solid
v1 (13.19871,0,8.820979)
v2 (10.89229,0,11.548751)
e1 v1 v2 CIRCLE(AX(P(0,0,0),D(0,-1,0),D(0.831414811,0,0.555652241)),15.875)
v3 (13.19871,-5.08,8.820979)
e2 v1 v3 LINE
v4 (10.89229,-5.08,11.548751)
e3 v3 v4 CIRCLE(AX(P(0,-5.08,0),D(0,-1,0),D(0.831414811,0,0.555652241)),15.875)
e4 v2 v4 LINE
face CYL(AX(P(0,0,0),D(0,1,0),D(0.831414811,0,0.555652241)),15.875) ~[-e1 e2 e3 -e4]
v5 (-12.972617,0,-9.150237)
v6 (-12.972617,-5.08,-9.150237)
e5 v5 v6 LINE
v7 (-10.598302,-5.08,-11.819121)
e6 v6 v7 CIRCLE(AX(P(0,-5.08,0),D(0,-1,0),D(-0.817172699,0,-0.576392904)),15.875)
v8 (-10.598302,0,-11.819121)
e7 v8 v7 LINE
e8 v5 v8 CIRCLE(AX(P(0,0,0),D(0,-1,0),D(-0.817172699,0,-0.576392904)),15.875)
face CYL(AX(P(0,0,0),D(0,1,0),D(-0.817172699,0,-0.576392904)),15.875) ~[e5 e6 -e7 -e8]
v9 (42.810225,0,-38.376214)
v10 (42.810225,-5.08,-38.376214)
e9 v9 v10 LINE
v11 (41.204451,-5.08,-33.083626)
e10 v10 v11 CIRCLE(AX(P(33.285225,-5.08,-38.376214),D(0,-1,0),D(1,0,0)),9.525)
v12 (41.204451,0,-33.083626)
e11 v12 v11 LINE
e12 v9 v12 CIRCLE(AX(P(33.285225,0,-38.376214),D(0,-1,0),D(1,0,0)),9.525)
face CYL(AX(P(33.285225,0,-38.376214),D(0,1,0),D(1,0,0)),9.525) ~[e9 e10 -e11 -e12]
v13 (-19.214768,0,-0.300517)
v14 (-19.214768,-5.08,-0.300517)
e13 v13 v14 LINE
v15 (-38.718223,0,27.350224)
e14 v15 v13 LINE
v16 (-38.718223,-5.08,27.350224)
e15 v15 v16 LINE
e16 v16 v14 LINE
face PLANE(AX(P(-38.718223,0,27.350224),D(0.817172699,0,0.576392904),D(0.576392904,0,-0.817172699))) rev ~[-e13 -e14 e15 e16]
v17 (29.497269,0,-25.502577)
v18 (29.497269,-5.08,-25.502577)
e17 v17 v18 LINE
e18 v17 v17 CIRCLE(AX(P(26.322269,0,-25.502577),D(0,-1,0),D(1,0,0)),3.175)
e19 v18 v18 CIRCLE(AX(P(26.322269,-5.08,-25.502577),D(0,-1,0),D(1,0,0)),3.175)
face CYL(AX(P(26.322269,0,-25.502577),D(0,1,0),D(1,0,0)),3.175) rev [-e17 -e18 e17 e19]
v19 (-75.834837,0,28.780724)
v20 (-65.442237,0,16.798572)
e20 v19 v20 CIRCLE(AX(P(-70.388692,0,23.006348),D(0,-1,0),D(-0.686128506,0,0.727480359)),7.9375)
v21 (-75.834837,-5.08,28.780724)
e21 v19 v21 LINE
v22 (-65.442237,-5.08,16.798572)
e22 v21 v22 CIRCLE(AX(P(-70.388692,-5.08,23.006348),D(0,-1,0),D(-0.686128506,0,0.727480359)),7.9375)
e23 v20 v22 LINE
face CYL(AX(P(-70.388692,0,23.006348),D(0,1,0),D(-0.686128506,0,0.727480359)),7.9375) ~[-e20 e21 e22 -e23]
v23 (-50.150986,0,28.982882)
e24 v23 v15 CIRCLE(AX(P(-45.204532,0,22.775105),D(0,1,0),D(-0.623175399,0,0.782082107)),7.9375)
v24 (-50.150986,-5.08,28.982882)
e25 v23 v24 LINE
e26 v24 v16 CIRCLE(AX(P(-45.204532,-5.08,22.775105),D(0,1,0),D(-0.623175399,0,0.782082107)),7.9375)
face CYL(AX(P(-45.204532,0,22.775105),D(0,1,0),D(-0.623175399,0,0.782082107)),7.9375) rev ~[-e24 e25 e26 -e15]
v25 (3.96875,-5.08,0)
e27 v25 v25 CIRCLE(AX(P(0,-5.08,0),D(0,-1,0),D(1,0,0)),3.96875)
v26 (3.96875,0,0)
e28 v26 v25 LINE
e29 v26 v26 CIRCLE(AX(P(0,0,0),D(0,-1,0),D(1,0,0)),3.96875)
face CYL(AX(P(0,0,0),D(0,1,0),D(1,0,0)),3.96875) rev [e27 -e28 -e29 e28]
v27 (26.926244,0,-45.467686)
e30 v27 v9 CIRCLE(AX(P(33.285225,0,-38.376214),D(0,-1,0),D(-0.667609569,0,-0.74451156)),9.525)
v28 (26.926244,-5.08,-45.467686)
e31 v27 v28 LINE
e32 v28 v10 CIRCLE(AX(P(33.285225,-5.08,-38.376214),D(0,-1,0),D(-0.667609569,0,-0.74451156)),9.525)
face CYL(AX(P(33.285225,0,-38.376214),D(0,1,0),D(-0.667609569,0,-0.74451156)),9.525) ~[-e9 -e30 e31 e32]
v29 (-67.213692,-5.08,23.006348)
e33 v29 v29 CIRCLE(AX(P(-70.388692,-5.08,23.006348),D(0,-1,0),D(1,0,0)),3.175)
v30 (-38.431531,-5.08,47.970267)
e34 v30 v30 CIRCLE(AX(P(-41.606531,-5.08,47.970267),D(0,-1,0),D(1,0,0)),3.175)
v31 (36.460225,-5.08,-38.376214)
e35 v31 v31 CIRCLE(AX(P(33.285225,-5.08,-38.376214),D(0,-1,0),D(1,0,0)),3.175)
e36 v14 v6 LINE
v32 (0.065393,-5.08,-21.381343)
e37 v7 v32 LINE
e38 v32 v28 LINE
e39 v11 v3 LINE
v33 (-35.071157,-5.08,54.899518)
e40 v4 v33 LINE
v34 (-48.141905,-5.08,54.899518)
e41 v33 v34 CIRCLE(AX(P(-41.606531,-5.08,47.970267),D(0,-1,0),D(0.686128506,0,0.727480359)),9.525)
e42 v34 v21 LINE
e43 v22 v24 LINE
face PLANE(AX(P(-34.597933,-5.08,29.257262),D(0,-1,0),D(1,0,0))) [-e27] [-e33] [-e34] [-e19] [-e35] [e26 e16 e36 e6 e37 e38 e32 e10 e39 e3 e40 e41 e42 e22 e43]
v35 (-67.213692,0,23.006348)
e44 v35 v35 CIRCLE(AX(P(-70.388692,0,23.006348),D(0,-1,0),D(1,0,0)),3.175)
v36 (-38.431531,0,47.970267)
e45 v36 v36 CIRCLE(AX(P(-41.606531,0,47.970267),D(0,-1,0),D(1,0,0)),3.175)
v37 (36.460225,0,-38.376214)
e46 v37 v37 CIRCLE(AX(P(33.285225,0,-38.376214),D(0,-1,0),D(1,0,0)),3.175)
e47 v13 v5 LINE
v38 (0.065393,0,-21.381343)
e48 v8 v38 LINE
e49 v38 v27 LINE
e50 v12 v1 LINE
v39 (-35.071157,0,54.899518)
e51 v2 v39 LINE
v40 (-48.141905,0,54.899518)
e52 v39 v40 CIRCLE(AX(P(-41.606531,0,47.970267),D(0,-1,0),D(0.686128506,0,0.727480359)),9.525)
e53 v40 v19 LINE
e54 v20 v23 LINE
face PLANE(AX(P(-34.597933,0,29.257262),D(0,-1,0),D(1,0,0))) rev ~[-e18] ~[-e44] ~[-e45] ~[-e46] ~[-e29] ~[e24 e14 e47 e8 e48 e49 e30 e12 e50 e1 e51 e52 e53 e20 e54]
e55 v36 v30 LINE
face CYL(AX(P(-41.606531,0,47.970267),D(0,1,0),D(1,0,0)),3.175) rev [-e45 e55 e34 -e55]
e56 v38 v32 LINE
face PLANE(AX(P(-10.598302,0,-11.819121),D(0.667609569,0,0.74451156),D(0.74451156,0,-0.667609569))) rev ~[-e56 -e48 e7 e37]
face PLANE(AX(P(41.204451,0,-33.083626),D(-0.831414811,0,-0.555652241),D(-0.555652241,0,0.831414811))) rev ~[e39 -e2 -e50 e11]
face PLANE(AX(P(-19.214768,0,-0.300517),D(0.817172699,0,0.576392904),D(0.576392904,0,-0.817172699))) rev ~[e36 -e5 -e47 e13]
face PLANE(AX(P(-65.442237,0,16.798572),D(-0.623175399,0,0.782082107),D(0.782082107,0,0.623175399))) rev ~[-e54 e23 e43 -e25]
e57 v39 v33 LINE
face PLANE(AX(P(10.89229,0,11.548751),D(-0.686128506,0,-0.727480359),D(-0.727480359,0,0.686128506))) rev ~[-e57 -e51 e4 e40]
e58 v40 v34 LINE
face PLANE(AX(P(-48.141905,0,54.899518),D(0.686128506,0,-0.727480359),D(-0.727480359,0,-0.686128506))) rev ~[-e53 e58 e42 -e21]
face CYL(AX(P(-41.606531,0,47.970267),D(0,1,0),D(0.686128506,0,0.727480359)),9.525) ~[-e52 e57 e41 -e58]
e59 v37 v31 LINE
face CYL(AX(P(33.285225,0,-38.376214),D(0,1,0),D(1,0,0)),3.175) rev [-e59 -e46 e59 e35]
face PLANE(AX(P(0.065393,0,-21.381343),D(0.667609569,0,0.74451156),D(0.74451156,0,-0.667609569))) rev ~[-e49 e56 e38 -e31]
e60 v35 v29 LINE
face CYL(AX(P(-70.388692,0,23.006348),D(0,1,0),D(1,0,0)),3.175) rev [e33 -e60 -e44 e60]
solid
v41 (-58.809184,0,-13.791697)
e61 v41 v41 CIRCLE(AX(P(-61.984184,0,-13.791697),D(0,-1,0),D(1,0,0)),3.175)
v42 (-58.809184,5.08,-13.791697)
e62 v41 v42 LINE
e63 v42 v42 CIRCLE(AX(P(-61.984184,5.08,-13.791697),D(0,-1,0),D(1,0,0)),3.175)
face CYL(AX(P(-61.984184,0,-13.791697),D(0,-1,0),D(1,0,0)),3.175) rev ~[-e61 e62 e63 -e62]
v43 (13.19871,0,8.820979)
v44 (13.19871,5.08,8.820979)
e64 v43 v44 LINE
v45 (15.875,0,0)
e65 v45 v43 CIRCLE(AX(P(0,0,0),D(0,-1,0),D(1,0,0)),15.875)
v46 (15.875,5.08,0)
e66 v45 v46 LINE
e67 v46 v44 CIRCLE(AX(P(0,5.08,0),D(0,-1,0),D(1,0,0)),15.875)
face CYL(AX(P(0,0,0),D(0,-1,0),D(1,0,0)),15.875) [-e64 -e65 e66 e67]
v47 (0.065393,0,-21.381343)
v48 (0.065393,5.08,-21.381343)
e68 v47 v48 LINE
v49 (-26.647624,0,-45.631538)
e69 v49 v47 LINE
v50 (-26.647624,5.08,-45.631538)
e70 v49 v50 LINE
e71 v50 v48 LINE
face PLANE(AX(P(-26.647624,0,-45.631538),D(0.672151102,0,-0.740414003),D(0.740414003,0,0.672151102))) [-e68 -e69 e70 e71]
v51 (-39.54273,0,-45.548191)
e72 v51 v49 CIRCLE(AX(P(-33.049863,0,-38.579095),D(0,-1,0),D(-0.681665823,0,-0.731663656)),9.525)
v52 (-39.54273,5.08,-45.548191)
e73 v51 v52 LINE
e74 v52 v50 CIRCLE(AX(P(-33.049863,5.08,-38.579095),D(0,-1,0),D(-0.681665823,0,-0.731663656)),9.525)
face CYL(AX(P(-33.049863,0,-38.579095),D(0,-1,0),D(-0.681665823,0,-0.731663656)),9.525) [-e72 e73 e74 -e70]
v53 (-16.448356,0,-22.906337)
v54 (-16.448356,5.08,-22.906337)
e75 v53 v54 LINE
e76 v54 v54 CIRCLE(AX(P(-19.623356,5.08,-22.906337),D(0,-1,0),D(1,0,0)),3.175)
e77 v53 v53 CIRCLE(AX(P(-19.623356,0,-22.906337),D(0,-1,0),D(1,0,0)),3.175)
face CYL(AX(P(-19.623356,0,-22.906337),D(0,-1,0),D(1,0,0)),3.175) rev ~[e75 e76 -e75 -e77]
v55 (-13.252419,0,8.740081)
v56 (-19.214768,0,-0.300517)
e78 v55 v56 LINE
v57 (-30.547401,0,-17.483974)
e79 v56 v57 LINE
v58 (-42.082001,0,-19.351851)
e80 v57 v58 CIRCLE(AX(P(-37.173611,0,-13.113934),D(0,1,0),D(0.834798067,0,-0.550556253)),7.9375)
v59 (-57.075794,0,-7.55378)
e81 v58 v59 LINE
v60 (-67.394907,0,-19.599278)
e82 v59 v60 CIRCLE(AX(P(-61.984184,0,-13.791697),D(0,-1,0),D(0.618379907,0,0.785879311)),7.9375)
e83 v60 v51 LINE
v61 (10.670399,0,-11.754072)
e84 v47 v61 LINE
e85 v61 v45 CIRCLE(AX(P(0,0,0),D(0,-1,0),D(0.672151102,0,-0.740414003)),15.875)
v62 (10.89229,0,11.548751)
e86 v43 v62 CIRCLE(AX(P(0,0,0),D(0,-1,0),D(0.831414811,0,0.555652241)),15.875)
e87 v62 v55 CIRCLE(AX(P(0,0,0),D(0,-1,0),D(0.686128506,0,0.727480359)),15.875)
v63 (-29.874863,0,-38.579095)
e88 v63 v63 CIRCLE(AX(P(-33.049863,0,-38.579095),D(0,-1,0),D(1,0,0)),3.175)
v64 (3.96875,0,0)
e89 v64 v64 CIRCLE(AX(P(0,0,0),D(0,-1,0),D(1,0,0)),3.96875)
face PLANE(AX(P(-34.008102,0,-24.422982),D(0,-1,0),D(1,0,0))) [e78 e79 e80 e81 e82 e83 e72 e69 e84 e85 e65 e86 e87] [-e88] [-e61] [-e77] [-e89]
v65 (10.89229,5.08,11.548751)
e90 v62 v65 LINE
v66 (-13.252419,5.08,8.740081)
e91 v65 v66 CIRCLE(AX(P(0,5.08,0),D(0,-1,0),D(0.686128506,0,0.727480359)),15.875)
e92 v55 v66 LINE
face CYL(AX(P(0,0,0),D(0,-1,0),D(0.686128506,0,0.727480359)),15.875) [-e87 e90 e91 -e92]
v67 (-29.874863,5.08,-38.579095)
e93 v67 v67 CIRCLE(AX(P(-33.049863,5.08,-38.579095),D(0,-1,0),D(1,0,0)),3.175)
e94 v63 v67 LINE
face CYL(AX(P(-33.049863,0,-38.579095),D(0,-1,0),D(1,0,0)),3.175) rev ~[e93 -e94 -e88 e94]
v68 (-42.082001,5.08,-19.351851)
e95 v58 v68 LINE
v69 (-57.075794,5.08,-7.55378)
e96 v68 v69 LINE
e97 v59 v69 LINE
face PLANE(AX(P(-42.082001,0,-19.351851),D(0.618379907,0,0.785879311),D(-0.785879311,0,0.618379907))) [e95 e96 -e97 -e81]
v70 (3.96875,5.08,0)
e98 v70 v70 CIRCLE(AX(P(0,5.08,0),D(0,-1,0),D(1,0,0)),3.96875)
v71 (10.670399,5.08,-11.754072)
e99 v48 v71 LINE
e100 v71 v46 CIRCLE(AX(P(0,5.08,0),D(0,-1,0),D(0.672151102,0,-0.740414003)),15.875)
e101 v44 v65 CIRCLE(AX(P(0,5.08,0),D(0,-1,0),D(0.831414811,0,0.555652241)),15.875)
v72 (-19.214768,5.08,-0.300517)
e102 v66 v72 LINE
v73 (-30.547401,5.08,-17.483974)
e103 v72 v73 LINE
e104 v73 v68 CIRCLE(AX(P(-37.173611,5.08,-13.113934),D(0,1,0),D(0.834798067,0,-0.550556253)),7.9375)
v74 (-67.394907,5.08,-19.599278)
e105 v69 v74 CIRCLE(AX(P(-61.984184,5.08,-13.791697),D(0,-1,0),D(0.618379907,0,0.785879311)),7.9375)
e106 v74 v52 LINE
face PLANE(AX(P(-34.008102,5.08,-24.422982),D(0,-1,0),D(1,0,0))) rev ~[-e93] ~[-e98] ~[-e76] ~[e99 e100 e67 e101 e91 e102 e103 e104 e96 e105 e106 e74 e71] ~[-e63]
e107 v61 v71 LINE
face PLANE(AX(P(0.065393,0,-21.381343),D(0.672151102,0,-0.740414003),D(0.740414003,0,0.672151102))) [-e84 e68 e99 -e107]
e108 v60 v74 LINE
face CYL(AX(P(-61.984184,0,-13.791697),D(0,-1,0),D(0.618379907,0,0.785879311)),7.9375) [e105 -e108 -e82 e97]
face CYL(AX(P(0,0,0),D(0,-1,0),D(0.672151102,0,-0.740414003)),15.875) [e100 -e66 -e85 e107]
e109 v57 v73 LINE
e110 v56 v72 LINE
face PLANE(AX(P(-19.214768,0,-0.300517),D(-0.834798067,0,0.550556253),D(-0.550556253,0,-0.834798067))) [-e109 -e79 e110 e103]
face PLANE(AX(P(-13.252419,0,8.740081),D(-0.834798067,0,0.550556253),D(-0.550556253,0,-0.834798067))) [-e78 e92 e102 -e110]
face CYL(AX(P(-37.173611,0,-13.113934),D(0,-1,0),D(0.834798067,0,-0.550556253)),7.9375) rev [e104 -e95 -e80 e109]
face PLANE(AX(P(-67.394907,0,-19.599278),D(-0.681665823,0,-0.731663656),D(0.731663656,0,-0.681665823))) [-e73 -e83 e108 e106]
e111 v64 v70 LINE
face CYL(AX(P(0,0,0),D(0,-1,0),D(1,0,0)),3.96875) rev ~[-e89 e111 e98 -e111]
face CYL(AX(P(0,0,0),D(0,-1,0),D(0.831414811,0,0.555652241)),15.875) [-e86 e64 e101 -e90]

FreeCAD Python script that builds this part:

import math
import FreeCAD as App
import Part
import Sketcher
Q = App.Units.Quantity

doc = App.newDocument("Part")
body = doc.addObject("PartDesign::Body", "Body")

sketch1 = doc.addObject("Sketcher::SketchObject", "Sketch")
body.addObject(sketch1)
sketch1.AttachmentSupport = (doc.XZ_Plane, [""])
sketch1.MapMode = "FlatFace"
sketch1.addGeometry([
    Part.LineSegment(App.Vector(10.89229, 11.548751, 0), App.Vector(-35.071157, 54.899518, 0)),
    Part.ArcOfCircle(Part.Circle(App.Vector(-41.606531, 47.970267, 0), App.Vector(0, 0, 1), 9.525), math.radians(46.675578), math.radians(133.324422)),
    Part.LineSegment(App.Vector(-48.141905, 54.899518, 0), App.Vector(-75.834837, 28.780724, 0)),
    Part.ArcOfCircle(Part.Circle(App.Vector(-70.388692, 23.006348, 0), App.Vector(0, 0, 1), 7.9375), math.radians(133.324422), math.radians(308.548392)),
    Part.LineSegment(App.Vector(-65.442237, 16.798572, 0), App.Vector(-50.150986, 28.982882, 0)),
    Part.ArcOfCircle(Part.Circle(App.Vector(-45.204532, 22.775105, 0), App.Vector(0, 0, 1), 7.9375), math.radians(35.197237), math.radians(128.548392)),
    Part.LineSegment(App.Vector(-38.718223, 27.350224, 0), App.Vector(-19.214768, -0.300517, 0)),
    Part.LineSegment(App.Vector(-19.214768, -0.300517, 0), App.Vector(-12.972617, -9.150237, 0)),
    Part.ArcOfCircle(Part.Circle(App.Vector(0, 0, 0), App.Vector(0, 0, 1), 15.875), math.radians(-144.802763), math.radians(-131.882837)),
    Part.LineSegment(App.Vector(-10.598302, -11.819121, 0), App.Vector(0.065393, -21.381343, 0)),
    Part.LineSegment(App.Vector(0.065393, -21.381343, 0), App.Vector(26.926244, -45.467686, 0)),
    Part.ArcOfCircle(Part.Circle(App.Vector(33.285225, -38.376214, 0), App.Vector(0, 0, 1), 9.525), math.radians(-131.882837), math.radians(0)),
    Part.ArcOfCircle(Part.Circle(App.Vector(33.285225, -38.376214, 0), App.Vector(0, 0, 1), 9.525), math.radians(0), math.radians(33.755651)),
    Part.LineSegment(App.Vector(41.204451, -33.083626, 0), App.Vector(13.19871, 8.820979, 0)),
    Part.ArcOfCircle(Part.Circle(App.Vector(0, 0, 0), App.Vector(0, 0, 1), 15.875), math.radians(33.755651), math.radians(46.675578)),
    Part.Circle(App.Vector(33.285225, -38.376214, 0), App.Vector(0, 0, 1), 3.175),
    Part.Circle(App.Vector(26.322269, -25.502577, 0), App.Vector(0, 0, 1), 3.175),
    Part.Circle(App.Vector(0, 0, 0), App.Vector(0, 0, 1), 3.96875),
    Part.Circle(App.Vector(-70.388692, 23.006348, 0), App.Vector(0, 0, 1), 3.175),
    Part.Circle(App.Vector(-41.606531, 47.970267, 0), App.Vector(0, 0, 1), 3.175),
], False)
sketch1.addConstraint([
    Sketcher.Constraint("Tangent", 0, 2, 1, 1),
    Sketcher.Constraint("Tangent", 1, 2, 2, 1),
    Sketcher.Constraint("Tangent", 2, 2, 3, 1),
    Sketcher.Constraint("Tangent", 3, 2, 4, 1),
    Sketcher.Constraint("Tangent", 4, 2, 5, 2),
    Sketcher.Constraint("Tangent", 5, 1, 6, 1),
    Sketcher.Constraint("Coincident", 6, 2, 7, 1),
    Sketcher.Constraint("Tangent", 7, 2, 8, 1),
    Sketcher.Constraint("Tangent", 8, 2, 9, 1),
    Sketcher.Constraint("Coincident", 9, 2, 10, 1),
    Sketcher.Constraint("Tangent", 10, 2, 11, 1),
    Sketcher.Constraint("Tangent", 11, 2, 12, 1),
    Sketcher.Constraint("Tangent", 12, 2, 13, 1),
    Sketcher.Constraint("Tangent", 13, 2, 14, 1),
    Sketcher.Constraint("Tangent", 14, 2, 0, 1),
    Sketcher.Constraint("Coincident", 8, 3, -1, 1),
    Sketcher.Constraint("Coincident", 14, 3, -1, 1),
    Sketcher.Constraint("Coincident", 17, 3, -1, 1),
    Sketcher.Constraint("Coincident", 15, 3, 11, 3),
    Sketcher.Constraint("Coincident", 18, 3, 3, 3),
    Sketcher.Constraint("Coincident", 19, 3, 1, 3),
    Sketcher.Constraint("Equal", 3, 5),
    Sketcher.Constraint("Equal", 1, 11),
    Sketcher.Constraint("Equal", 11, 12),
    Sketcher.Constraint("Equal", 8, 14),
    Sketcher.Constraint("Equal", 15, 16),
    Sketcher.Constraint("Equal", 16, 18),
    Sketcher.Constraint("Equal", 18, 19),
    Sketcher.Constraint("Parallel", 6, 7),
    Sketcher.Constraint("Parallel", 9, 10),
    Sketcher.Constraint("Horizontal", 0, 2, 1, 2),
    Sketcher.Constraint("Horizontal", 15, 3, 11, 2),
    Sketcher.Constraint("Diameter", 15, Q("0.25 in")),
    Sketcher.Constraint("Diameter", 17, Q("0.3125 in")),
    Sketcher.Constraint("Radius", 1, Q("0.375 in")),
    Sketcher.Constraint("Radius", 3, Q("0.3125 in")),
    Sketcher.Constraint("Radius", 8, Q("0.625 in")),
    Sketcher.Constraint("DistanceX", 8, 2, -1, 1, 10.598302),
    Sketcher.Constraint("DistanceX", 5, 3, 1, 3, 3.598),
    Sketcher.Constraint("DistanceX", 2, 2, 3, 2, 10.3926),
    Sketcher.Constraint("DistanceY", 8, 2, 13, 2, 20.6401),
    Sketcher.Constraint("Distance", 7, 10.829682),
    Sketcher.Constraint("DistanceX", 1, 3, -1, 1, 41.606531),
    Sketcher.Constraint("DistanceX", 3, 3, -1, 1, 70.388692),
    Sketcher.Constraint("DistanceY", -1, 1, 3, 3, 23.006348),
    Sketcher.Constraint("DistanceX", -1, 1, 16, 3, 26.322269),
    Sketcher.Constraint("DistanceY", 16, 3, 7, 2, 16.35234),
    Sketcher.Constraint("DistanceX", 7, 2, 9, 2, 13.03801),
])
pad1 = doc.addObject("PartDesign::Pad", "Pad")
body.addObject(pad1)
pad1.Profile = sketch1
pad1.Length = Q("0.2 in")
body2 = doc.addObject("PartDesign::Body", "Body001")

sketch2 = doc.addObject("Sketcher::SketchObject", "Sketch001")
body2.addObject(sketch2)
sketch2.AttachmentSupport = (doc.getObject("XZ_Plane001"), [""])
sketch2.MapMode = "FlatFace"
sketch2.addGeometry([
    Part.LineSegment(App.Vector(-26.647624, -45.631538, 0), App.Vector(0.065393, -21.381343, 0)),
    Part.LineSegment(App.Vector(0.065393, -21.381343, 0), App.Vector(10.670399, -11.754072, 0)),
    Part.ArcOfCircle(Part.Circle(App.Vector(0, 0, 0), App.Vector(0, 0, 1), 15.875), math.radians(-47.766694), math.radians(0)),
    Part.ArcOfCircle(Part.Circle(App.Vector(0, 0, 0), App.Vector(0, 0, 1), 15.875), math.radians(0), math.radians(33.755651)),
    Part.ArcOfCircle(Part.Circle(App.Vector(0, 0, 0), App.Vector(0, 0, 1), 15.875), math.radians(33.755651), math.radians(46.675578)),
    Part.ArcOfCircle(Part.Circle(App.Vector(0, 0, 0), App.Vector(0, 0, 1), 15.875), math.radians(46.675578), math.radians(146.594817)),
    Part.LineSegment(App.Vector(-13.252419, 8.740081, 0), App.Vector(-19.214768, -0.300517, 0)),
    Part.LineSegment(App.Vector(-19.214768, -0.300517, 0), App.Vector(-30.547401, -17.483974, 0)),
    Part.ArcOfCircle(Part.Circle(App.Vector(-37.173611, -13.113934, 0), App.Vector(0, 0, 1), 7.9375), math.radians(-128.197923), math.radians(-33.405183)),
    Part.LineSegment(App.Vector(-42.082001, -19.351851, 0), App.Vector(-57.075794, -7.55378, 0)),
    Part.ArcOfCircle(Part.Circle(App.Vector(-61.984184, -13.791697, 0), App.Vector(0, 0, 1), 7.9375), math.radians(51.802077), math.radians(227.026046)),
    Part.LineSegment(App.Vector(-67.394907, -19.599278, 0), App.Vector(-39.54273, -45.548191, 0)),
    Part.ArcOfCircle(Part.Circle(App.Vector(-33.049863, -38.579095, 0), App.Vector(0, 0, 1), 9.525), math.radians(-132.973954), math.radians(-47.766694)),
    Part.Circle(App.Vector(-33.049863, -38.579095, 0), App.Vector(0, 0, 1), 3.175),
    Part.Circle(App.Vector(-19.623356, -22.906337, 0), App.Vector(0, 0, 1), 3.175),
    Part.Circle(App.Vector(-61.984184, -13.791697, 0), App.Vector(0, 0, 1), 3.175),
    Part.Circle(App.Vector(0, 0, 0), App.Vector(0, 0, 1), 3.96875),
], False)
sketch2.addConstraint([
    Sketcher.Constraint("Coincident", 0, 2, 1, 1),
    Sketcher.Constraint("Tangent", 1, 2, 2, 1),
    Sketcher.Constraint("Tangent", 2, 2, 3, 1),
    Sketcher.Constraint("Tangent", 3, 2, 4, 1),
    Sketcher.Constraint("Tangent", 4, 2, 5, 1),
    Sketcher.Constraint("Tangent", 5, 2, 6, 1),
    Sketcher.Constraint("Coincident", 6, 2, 7, 1),
    Sketcher.Constraint("Tangent", 7, 2, 8, 2),
    Sketcher.Constraint("Tangent", 8, 1, 9, 1),
    Sketcher.Constraint("Tangent", 9, 2, 10, 1),
    Sketcher.Constraint("Tangent", 10, 2, 11, 1),
    Sketcher.Constraint("Tangent", 11, 2, 12, 1),
    Sketcher.Constraint("Tangent", 12, 2, 0, 1),
    Sketcher.Constraint("Coincident", 2, 3, -1, 1),
    Sketcher.Constraint("Coincident", 4, 3, -1, 1),
    Sketcher.Constraint("Coincident", 16, 3, -1, 1),
    Sketcher.Constraint("Coincident", 13, 3, 12, 3),
    Sketcher.Constraint("Coincident", 15, 3, 10, 3),
    Sketcher.Constraint("Equal", 4, 5),
    Sketcher.Constraint("Equal", 8, 10),
    Sketcher.Constraint("Equal", 13, 14),
    Sketcher.Constraint("Equal", 14, 15),
    Sketcher.Constraint("PointOnObject", 2, 2, -1),
    Sketcher.Constraint("Parallel", 0, 1),
    Sketcher.Constraint("Parallel", 6, 7),
    Sketcher.Constraint("Diameter", 13, Q("0.25 in")),
    Sketcher.Constraint("Diameter", 16, Q("0.3125 in")),
    Sketcher.Constraint("Radius", 2, Q("0.625 in")),
    Sketcher.Constraint("Radius", 8, Q("0.3125 in")),
    Sketcher.Constraint("Radius", 12, Q("0.375 in")),
    Sketcher.Constraint("Distance", 9, 19.079001),
    Sketcher.Constraint("DistanceX", -1, 1, 1, 2, 10.670399),
    Sketcher.Constraint("DistanceX", 7, 2, -1, 1, 30.547401),
    Sketcher.Constraint("DistanceX", 8, 1, -1, 1, 42.082001),
    Sketcher.Constraint("DistanceY", 12, 2, 14, 3, 22.725201),
    Sketcher.Constraint("Distance", 6, 10.829682),
    Sketcher.Constraint("Distance", 7, 20.583969),
    Sketcher.Constraint("DistanceX", -1, 1, 3, 2, 13.19871),
    Sketcher.Constraint("DistanceX", -1, 1, 4, 2, 10.89229),
    Sketcher.Constraint("DistanceX", 11, 2, -1, 1, 39.54273),
    Sketcher.Constraint("DistanceX", 14, 3, 0, 2, 19.688749),
    Sketcher.Constraint("DistanceY", 0, 2, 1, 2, 9.627271),
])
pad2 = doc.addObject("PartDesign::Pad", "Pad001")
body2.addObject(pad2)
pad2.Profile = sketch2
pad2.Length = Q("0.2 in")
pad2.Reversed = True

doc.recompute()
